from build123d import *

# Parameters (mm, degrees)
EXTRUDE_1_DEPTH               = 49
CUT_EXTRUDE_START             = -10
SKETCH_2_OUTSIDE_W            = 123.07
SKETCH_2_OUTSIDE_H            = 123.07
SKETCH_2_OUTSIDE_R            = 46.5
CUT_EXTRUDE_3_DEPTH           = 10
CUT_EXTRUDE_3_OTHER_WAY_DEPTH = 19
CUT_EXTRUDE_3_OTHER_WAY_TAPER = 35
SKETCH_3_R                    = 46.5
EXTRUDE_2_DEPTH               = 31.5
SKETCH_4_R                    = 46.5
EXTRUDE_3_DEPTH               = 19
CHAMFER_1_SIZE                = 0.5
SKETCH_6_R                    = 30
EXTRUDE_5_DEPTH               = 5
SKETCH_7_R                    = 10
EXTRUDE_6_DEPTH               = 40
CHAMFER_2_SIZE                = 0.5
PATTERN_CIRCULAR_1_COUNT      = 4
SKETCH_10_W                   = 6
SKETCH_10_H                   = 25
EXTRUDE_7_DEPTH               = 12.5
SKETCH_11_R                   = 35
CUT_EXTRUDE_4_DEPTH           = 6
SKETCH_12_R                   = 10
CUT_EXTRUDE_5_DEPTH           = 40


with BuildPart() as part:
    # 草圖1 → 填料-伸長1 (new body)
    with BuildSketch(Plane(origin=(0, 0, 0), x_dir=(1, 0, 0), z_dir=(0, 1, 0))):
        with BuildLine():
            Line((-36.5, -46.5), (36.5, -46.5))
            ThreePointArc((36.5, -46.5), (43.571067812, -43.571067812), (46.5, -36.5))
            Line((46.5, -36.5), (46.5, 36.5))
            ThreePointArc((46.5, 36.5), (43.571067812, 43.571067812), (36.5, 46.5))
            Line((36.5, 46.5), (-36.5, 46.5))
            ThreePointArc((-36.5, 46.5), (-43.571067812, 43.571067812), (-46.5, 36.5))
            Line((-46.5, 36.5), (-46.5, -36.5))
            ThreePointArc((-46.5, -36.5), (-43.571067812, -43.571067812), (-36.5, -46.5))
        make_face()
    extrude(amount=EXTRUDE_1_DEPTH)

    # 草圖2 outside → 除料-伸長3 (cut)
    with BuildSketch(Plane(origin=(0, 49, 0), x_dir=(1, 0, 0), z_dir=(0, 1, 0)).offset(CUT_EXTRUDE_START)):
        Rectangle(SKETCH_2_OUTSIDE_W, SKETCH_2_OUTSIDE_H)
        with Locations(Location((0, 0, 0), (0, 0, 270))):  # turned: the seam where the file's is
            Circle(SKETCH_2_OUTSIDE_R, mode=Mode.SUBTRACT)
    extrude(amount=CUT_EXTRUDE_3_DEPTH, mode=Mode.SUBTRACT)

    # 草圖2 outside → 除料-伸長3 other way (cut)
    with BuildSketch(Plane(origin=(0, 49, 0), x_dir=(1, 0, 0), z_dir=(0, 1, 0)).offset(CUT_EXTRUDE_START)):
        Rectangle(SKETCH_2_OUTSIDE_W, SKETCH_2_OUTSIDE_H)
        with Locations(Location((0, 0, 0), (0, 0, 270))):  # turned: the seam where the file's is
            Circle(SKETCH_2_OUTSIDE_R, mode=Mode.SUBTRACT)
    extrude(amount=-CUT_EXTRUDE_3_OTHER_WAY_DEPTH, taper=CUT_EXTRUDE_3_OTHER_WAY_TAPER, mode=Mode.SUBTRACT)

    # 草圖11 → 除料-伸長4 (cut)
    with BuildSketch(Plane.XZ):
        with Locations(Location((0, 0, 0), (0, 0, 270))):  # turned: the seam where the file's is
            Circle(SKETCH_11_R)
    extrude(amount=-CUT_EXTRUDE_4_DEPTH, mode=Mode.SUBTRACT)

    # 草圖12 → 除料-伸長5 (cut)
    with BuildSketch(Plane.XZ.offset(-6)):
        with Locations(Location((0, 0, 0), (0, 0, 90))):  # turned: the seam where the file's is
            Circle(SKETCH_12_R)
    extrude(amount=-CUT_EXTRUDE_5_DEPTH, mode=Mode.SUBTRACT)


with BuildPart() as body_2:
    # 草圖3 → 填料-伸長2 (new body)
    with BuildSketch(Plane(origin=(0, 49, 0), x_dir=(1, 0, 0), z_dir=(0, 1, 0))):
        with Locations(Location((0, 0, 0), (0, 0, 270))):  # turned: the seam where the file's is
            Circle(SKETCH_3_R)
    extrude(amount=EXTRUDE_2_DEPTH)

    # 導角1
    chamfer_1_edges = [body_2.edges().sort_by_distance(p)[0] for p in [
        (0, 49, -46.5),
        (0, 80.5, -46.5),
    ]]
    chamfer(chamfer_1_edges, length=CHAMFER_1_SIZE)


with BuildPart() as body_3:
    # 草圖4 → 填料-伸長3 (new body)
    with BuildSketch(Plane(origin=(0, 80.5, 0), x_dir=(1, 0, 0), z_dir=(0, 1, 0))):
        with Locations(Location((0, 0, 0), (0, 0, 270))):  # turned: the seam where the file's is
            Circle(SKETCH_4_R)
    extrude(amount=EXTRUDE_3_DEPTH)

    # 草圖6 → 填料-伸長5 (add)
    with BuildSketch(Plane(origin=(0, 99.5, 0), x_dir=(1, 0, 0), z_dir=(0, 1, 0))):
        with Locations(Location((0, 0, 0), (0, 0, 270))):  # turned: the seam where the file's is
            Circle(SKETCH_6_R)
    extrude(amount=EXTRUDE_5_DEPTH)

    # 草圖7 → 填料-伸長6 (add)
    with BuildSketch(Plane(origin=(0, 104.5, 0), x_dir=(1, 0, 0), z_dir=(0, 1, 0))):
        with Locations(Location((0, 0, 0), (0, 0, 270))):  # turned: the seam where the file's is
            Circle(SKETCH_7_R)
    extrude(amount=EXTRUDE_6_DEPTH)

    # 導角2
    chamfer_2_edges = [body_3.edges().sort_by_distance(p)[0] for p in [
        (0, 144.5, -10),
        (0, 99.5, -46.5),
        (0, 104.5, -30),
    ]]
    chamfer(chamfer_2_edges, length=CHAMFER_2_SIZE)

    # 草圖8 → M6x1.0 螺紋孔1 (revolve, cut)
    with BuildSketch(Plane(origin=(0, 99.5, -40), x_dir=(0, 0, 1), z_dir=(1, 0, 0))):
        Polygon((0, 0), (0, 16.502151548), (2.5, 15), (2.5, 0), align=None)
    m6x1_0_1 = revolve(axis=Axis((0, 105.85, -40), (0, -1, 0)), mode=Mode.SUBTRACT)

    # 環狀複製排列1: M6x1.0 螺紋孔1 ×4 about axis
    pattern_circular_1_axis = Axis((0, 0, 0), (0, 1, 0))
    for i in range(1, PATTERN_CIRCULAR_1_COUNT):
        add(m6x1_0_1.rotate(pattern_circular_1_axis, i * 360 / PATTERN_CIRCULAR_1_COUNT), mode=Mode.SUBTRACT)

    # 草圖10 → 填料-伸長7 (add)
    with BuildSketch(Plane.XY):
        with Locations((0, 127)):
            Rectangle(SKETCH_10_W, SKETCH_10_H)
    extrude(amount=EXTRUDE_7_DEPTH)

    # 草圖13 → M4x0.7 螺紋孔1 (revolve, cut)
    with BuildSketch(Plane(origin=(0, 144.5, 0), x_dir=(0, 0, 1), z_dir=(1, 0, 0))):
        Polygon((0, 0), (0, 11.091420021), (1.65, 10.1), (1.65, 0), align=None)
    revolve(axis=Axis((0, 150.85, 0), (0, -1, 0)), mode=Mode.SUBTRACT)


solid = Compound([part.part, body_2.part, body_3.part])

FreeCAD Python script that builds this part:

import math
import FreeCAD as App
import Part
import Sketcher
Q = App.Units.Quantity


def edges_at(feature, points):
    """Names of the edges that pass closest to the given points."""
    edges = feature.Shape.Edges
    near = lambda p: min(range(len(edges)), key=lambda i: edges[i].distToShape(Part.Vertex(*p))[0])
    return sorted({f"Edge{near(p) + 1}" for p in points})


def add_polygon(sketch, points):
    """Adds a closed chain of lines whose ends are joined by coincident constraints."""
    first, n = sketch.GeometryCount, len(points)
    for a, b in zip(points, points[1:] + points[:1]):
        sketch.addGeometry(Part.LineSegment(App.Vector(*a, 0), App.Vector(*b, 0)), False)
    for i in range(n):
        sketch.addConstraint(Sketcher.Constraint("Coincident", first + i, 2, first + (i + 1) % n, 1))

doc = App.newDocument("Part")
body = doc.addObject("PartDesign::Body", "Body")

# Sketch on XZ plane
sketch1 = body.newObject("Sketcher::SketchObject", "Sketch")
sketch1.AttachmentSupport = (doc.getObject("XZ_Plane"), [""])
sketch1.MapMode = "FlatFace"
sketch1.addGeometry(Part.LineSegment(App.Vector(-36, 46, 0), App.Vector(36, 46, 0)), False)
sketch1.addGeometry(Part.ArcOfCircle(Part.Circle(App.Vector(36, 36, 0), App.Vector(0, 0, 1), 10), math.radians(0), math.radians(90)), False)
sketch1.addGeometry(Part.LineSegment(App.Vector(46, 36, 0), App.Vector(46, -36, 0)), False)
sketch1.addGeometry(Part.ArcOfCircle(Part.Circle(App.Vector(36, -36, 0), App.Vector(0, 0, 1), 10), math.radians(-90), math.radians(0)), False)
sketch1.addGeometry(Part.LineSegment(App.Vector(36, -46, 0), App.Vector(-36, -46, 0)), False)
sketch1.addGeometry(Part.ArcOfCircle(Part.Circle(App.Vector(-36, -36, 0), App.Vector(0, 0, 1), 10), math.radians(180), math.radians(270)), False)
sketch1.addGeometry(Part.LineSegment(App.Vector(-46, -36, 0), App.Vector(-46, 36, 0)), False)
sketch1.addGeometry(Part.ArcOfCircle(Part.Circle(App.Vector(-36, 36, 0), App.Vector(0, 0, 1), 10), math.radians(90), math.radians(180)), False)
sketch1.addConstraint(Sketcher.Constraint("Tangent", 0, 2, 1, 2))
sketch1.addConstraint(Sketcher.Constraint("Tangent", 1, 1, 2, 1))
sketch1.addConstraint(Sketcher.Constraint("Tangent", 2, 2, 3, 2))
sketch1.addConstraint(Sketcher.Constraint("Tangent", 3, 1, 4, 1))
sketch1.addConstraint(Sketcher.Constraint("Tangent", 4, 2, 5, 2))
sketch1.addConstraint(Sketcher.Constraint("Tangent", 5, 1, 6, 1))
sketch1.addConstraint(Sketcher.Constraint("Tangent", 6, 2, 7, 2))
sketch1.addConstraint(Sketcher.Constraint("Tangent", 7, 1, 0, 1))
sketch1.addConstraint(Sketcher.Constraint("Horizontal", 0))
sketch1.addConstraint(Sketcher.Constraint("Vertical", 2))
sketch1.addConstraint(Sketcher.Constraint("Horizontal", 4))
sketch1.addConstraint(Sketcher.Constraint("Vertical", 6))
sketch1.addConstraint(Sketcher.Constraint("Equal", 1, 3))
sketch1.addConstraint(Sketcher.Constraint("Equal", 3, 5))
sketch1.addConstraint(Sketcher.Constraint("Equal", 5, 7))
sketch1.addConstraint(Sketcher.Constraint("Symmetric", 1, 3, 5, 3, -1, 1))
sketch1.addConstraint(Sketcher.Constraint("Equal", 4, 2))
sketch1.addConstraint(Sketcher.Constraint("Radius", 1, Q("10 mm")))
sketch1.addConstraint(Sketcher.Constraint("DistanceX", 0, 1, 0, 2, Q("73 mm")))
pad1 = body.newObject("PartDesign::Pad", "Pad")
pad1.Profile = sketch1
pad1.Length = 49
pad1.Reversed = True

# Sketch on XZ plane
sketch2 = body.newObject("Sketcher::SketchObject", "Sketch001")
sketch2.AttachmentSupport = (doc.getObject("XZ_Plane"), [""])
sketch2.MapMode = "FlatFace"
sketch2.AttachmentOffset = App.Placement(App.Vector(0, 0, -39), App.Rotation())
add_polygon(sketch2, [(-62, -62), (-62, 62), (62, 62), (62, -62)])  # lines 0-3
sketch2.addGeometry(Part.Circle(App.Vector(0, 0, 0), App.Vector(0, 0, 1), 46), False)  # 4
sketch2.addConstraint(Sketcher.Constraint("Vertical", 0))
sketch2.addConstraint(Sketcher.Constraint("Horizontal", 1))
sketch2.addConstraint(Sketcher.Constraint("Vertical", 2))
sketch2.addConstraint(Sketcher.Constraint("Horizontal", 3))
sketch2.addConstraint(Sketcher.Constraint("Coincident", 4, 3, -1, 1))
sketch2.addConstraint(Sketcher.Constraint("Symmetric", 0, 2, 2, 2, -1, 1))
sketch2.addConstraint(Sketcher.Constraint("Equal", 3, 0))
sketch2.addConstraint(Sketcher.Constraint("Diameter", 4, Q("93 mm")))
sketch2.addConstraint(Sketcher.Constraint("DistanceX", 1, 1, 1, 2, Q("123.07 mm")))
pocket1 = body.newObject("PartDesign::Pocket", "Pocket")
pocket1.Profile = sketch2
pocket1.Length = 10

# Sketch on XZ plane
sketch3 = body.newObject("Sketcher::SketchObject", "Sketch002")
sketch3.AttachmentSupport = (doc.getObject("XZ_Plane"), [""])
sketch3.MapMode = "FlatFace"
sketch3.AttachmentOffset = App.Placement(App.Vector(0, 0, -39), App.Rotation())
add_polygon(sketch3, [(-62, -62), (-62, 62), (62, 62), (62, -62)])  # lines 0-3
sketch3.addGeometry(Part.Circle(App.Vector(0, 0, 0), App.Vector(0, 0, 1), 46), False)  # 4
sketch3.addConstraint(Sketcher.Constraint("Vertical", 0))
sketch3.addConstraint(Sketcher.Constraint("Horizontal", 1))
sketch3.addConstraint(Sketcher.Constraint("Vertical", 2))
sketch3.addConstraint(Sketcher.Constraint("Horizontal", 3))
sketch3.addConstraint(Sketcher.Constraint("Coincident", 4, 3, -1, 1))
sketch3.addConstraint(Sketcher.Constraint("Symmetric", 0, 2, 2, 2, -1, 1))
sketch3.addConstraint(Sketcher.Constraint("Equal", 3, 0))
sketch3.addConstraint(Sketcher.Constraint("Diameter", 4, Q("93 mm")))
sketch3.addConstraint(Sketcher.Constraint("DistanceX", 1, 1, 1, 2, Q("123.07 mm")))
pocket2 = body.newObject("PartDesign::Pocket", "Pocket001")
pocket2.Profile = sketch3
pocket2.Length = 19
pocket2.Reversed = True
pocket2.TaperAngle = 35

# Sketch on XZ plane
sketch4 = body.newObject("Sketcher::SketchObject", "Sketch003")
sketch4.AttachmentSupport = (doc.getObject("XZ_Plane"), [""])
sketch4.MapMode = "FlatFace"
sketch4.addGeometry(Part.Circle(App.Vector(0, 0, 0), App.Vector(0, 0, 1), 35), False)
sketch4.addConstraint(Sketcher.Constraint("Coincident", 0, 3, -1, 1))
sketch4.addConstraint(Sketcher.Constraint("Diameter", 0, Q("70 mm")))
pocket3 = body.newObject("PartDesign::Pocket", "Pocket002")
pocket3.Profile = sketch4
pocket3.Length = 6

# Sketch on XZ plane
sketch5 = body.newObject("Sketcher::SketchObject", "Sketch004")
sketch5.AttachmentSupport = (doc.getObject("XZ_Plane"), [""])
sketch5.MapMode = "FlatFace"
sketch5.AttachmentOffset = App.Placement(App.Vector(0, 0, -6), App.Rotation())
sketch5.addGeometry(Part.Circle(App.Vector(0, 0, 0), App.Vector(0, 0, 1), 10), False)
sketch5.addConstraint(Sketcher.Constraint("Coincident", 0, 3, -1, 1))
sketch5.addConstraint(Sketcher.Constraint("Diameter", 0, Q("20 mm")))
pocket4 = body.newObject("PartDesign::Pocket", "Pocket003")
pocket4.Profile = sketch5
pocket4.Length = 40
body2 = doc.addObject("PartDesign::Body", "Body001")

# Sketch on XZ plane
sketch6 = body2.newObject("Sketcher::SketchObject", "Sketch005")
sketch6.AttachmentSupport = (doc.getObject("XZ_Plane001"), [""])
sketch6.MapMode = "FlatFace"
sketch6.AttachmentOffset = App.Placement(App.Vector(0, 0, -49), App.Rotation())
sketch6.addGeometry(Part.Circle(App.Vector(0, 0, 0), App.Vector(0, 0, 1), 46), False)
sketch6.addConstraint(Sketcher.Constraint("Coincident", 0, 3, -1, 1))
sketch6.addConstraint(Sketcher.Constraint("Diameter", 0, Q("93 mm")))
pad2 = body2.newObject("PartDesign::Pad", "Pad001")
pad2.Profile = sketch6
pad2.Length = 31.5
pad2.Reversed = True
doc.recompute()

chamfer = body2.newObject("PartDesign::Chamfer", "Chamfer")
chamfer.Base = (pad2, edges_at(pad2, [(0, 49, -46.5), (0, 80.5, -46.5)]))
chamfer.Size = 0.5
body3 = doc.addObject("PartDesign::Body", "Body002")

# Sketch on XZ plane
sketch7 = body3.newObject("Sketcher::SketchObject", "Sketch006")
sketch7.AttachmentSupport = (doc.getObject("XZ_Plane002"), [""])
sketch7.MapMode = "FlatFace"
sketch7.AttachmentOffset = App.Placement(App.Vector(0, 0, -80.5), App.Rotation())
sketch7.addGeometry(Part.Circle(App.Vector(0, 0, 0), App.Vector(0, 0, 1), 46), False)
sketch7.addConstraint(Sketcher.Constraint("Coincident", 0, 3, -1, 1))
sketch7.addConstraint(Sketcher.Constraint("Diameter", 0, Q("93 mm")))
pad3 = body3.newObject("PartDesign::Pad", "Pad002")
pad3.Profile = sketch7
pad3.Length = 19
pad3.Reversed = True

# Sketch on XZ plane
sketch8 = body3.newObject("Sketcher::SketchObject", "Sketch007")
sketch8.AttachmentSupport = (doc.getObject("XZ_Plane002"), [""])
sketch8.MapMode = "FlatFace"
sketch8.AttachmentOffset = App.Placement(App.Vector(0, 0, -99.5), App.Rotation())
sketch8.addGeometry(Part.Circle(App.Vector(0, 0, 0), App.Vector(0, 0, 1), 30), False)
sketch8.addConstraint(Sketcher.Constraint("Coincident", 0, 3, -1, 1))
sketch8.addConstraint(Sketcher.Constraint("Diameter", 0, Q("60 mm")))
pad4 = body3.newObject("PartDesign::Pad", "Pad003")
pad4.Profile = sketch8
pad4.Length = 5
pad4.Reversed = True

# Sketch on XZ plane
sketch9 = body3.newObject("Sketcher::SketchObject", "Sketch008")
sketch9.AttachmentSupport = (doc.getObject("XZ_Plane002"), [""])
sketch9.MapMode = "FlatFace"
sketch9.AttachmentOffset = App.Placement(App.Vector(0, 0, -104.5), App.Rotation())
sketch9.addGeometry(Part.Circle(App.Vector(0, 0, 0), App.Vector(0, 0, 1), 10), False)
sketch9.addConstraint(Sketcher.Constraint("Coincident", 0, 3, -1, 1))
sketch9.addConstraint(Sketcher.Constraint("Diameter", 0, Q("20 mm")))
pad5 = body3.newObject("PartDesign::Pad", "Pad004")
pad5.Profile = sketch9
pad5.Length = 40
pad5.Reversed = True
doc.recompute()

chamfer2 = body3.newObject("PartDesign::Chamfer", "Chamfer001")
chamfer2.Base = (pad5, edges_at(pad5, [(0, 144.5, -10), (0, 99.5, -46.5), (0, 104.5, -30)]))
chamfer2.Size = 0.5

# Sketch on YZ plane
sketch10 = body3.newObject("Sketcher::SketchObject", "Sketch009")
sketch10.AttachmentSupport = (doc.getObject("YZ_Plane002"), [""])
sketch10.MapMode = "FlatFace"
add_polygon(sketch10, [(83, -40), (99.5, -40), (99.5, -37.5), (84.5, -37.5)])  # lines 0-3
sketch10.addGeometry(Part.LineSegment(App.Vector(99.5, -40, 0), App.Vector(83, -40, 0)), True)  # axis
sketch10.addConstraint(Sketcher.Constraint("Horizontal", 0))
sketch10.addConstraint(Sketcher.Constraint("Vertical", 1))
sketch10.addConstraint(Sketcher.Constraint("Horizontal", 2))
sketch10.addConstraint(Sketcher.Constraint("Horizontal", 4))
sketch10.addConstraint(Sketcher.Constraint("Coincident", 4, 1, 0, 2))
sketch10.addConstraint(Sketcher.Constraint("Equal", 0, 4))
sketch10.addConstraint(Sketcher.Constraint("DistanceX", 2, 2, 2, 1, Q("15 mm")))
sketch10.addConstraint(Sketcher.Constraint("Angle", 3, Q("-121 deg")))
sketch10.addConstraint(Sketcher.Constraint("DistanceY", 1, 1, 1, 2, Q("2.5 mm")))
sketch10.addConstraint(Sketcher.Constraint("DistanceY", 0, 2, -1, 1, Q("40 mm")))
sketch10.addConstraint(Sketcher.Constraint("DistanceX", -1, 1, 0, 2, Q("99.5 mm")))
groove = body3.newObject("PartDesign::Groove", "Groove")
groove.Profile = sketch10
groove.ReferenceAxis = (sketch10, ["Axis0"])
groove.Angle = 360
doc.recompute()

polarpattern = body3.newObject("PartDesign::PolarPattern", "PolarPattern")
polarpattern.Originals = [groove]
polarpattern.Axis = (doc.getObject("Y_Axis002"), [""])
polarpattern.Angle = 360
polarpattern.Occurrences = 4
body3.Tip = polarpattern

# Sketch on XY plane
sketch11 = body3.newObject("Sketcher::SketchObject", "Sketch010")
sketch11.AttachmentSupport = (doc.getObject("XY_Plane002"), [""])
sketch11.MapMode = "FlatFace"
add_polygon(sketch11, [(-3, 140), (-3, 114), (3, 114), (3, 140)])  # lines 0-3
sketch11.addConstraint(Sketcher.Constraint("Vertical", 0))
sketch11.addConstraint(Sketcher.Constraint("Horizontal", 1))
sketch11.addConstraint(Sketcher.Constraint("Vertical", 2))
sketch11.addConstraint(Sketcher.Constraint("Horizontal", 3))
sketch11.addConstraint(Sketcher.Constraint("DistanceX", 1, 1, 1, 2, Q("6 mm")))
sketch11.addConstraint(Sketcher.Constraint("DistanceY", 0, 2, 0, 1, Q("25 mm")))
sketch11.addConstraint(Sketcher.Constraint("DistanceX", 0, 2, -1, 1, Q("3 mm")))
sketch11.addConstraint(Sketcher.Constraint("DistanceY", -1, 1, 0, 2, Q("114.5 mm")))
pad6 = body3.newObject("PartDesign::Pad", "Pad005")
pad6.Profile = sketch11
pad6.Length = 12.5

# Sketch on YZ plane
sketch12 = body3.newObject("Sketcher::SketchObject", "Sketch011")
sketch12.AttachmentSupport = (doc.getObject("YZ_Plane002"), [""])
sketch12.MapMode = "FlatFace"
add_polygon(sketch12, [(133.4, 0), (144.5, 0), (144.5, 1.6), (134.4, 1.6)])  # lines 0-3
sketch12.addConstraint(Sketcher.Constraint("Horizontal", 0))
sketch12.addConstraint(Sketcher.Constraint("Vertical", 1))
sketch12.addConstraint(Sketcher.Constraint("Horizontal", 2))
sketch12.addConstraint(Sketcher.Constraint("PointOnObject", 0, 2, -1))
sketch12.addConstraint(Sketcher.Constraint("Angle", 3, Q("-121 deg")))
sketch12.addConstraint(Sketcher.Constraint("DistanceX", 2, 2, 2, 1, Q("10.1 mm")))
sketch12.addConstraint(Sketcher.Constraint("DistanceY", 1, 1, 1, 2, Q("1.65 mm")))
sketch12.addConstraint(Sketcher.Constraint("DistanceX", -1, 1, 0, 2, Q("144.5 mm")))
groove2 = body3.newObject("PartDesign::Groove", "Groove001")
groove2.Profile = sketch12
groove2.ReferenceAxis = (sketch12, ["H_Axis"])
groove2.Angle = 360

doc.recompute()
